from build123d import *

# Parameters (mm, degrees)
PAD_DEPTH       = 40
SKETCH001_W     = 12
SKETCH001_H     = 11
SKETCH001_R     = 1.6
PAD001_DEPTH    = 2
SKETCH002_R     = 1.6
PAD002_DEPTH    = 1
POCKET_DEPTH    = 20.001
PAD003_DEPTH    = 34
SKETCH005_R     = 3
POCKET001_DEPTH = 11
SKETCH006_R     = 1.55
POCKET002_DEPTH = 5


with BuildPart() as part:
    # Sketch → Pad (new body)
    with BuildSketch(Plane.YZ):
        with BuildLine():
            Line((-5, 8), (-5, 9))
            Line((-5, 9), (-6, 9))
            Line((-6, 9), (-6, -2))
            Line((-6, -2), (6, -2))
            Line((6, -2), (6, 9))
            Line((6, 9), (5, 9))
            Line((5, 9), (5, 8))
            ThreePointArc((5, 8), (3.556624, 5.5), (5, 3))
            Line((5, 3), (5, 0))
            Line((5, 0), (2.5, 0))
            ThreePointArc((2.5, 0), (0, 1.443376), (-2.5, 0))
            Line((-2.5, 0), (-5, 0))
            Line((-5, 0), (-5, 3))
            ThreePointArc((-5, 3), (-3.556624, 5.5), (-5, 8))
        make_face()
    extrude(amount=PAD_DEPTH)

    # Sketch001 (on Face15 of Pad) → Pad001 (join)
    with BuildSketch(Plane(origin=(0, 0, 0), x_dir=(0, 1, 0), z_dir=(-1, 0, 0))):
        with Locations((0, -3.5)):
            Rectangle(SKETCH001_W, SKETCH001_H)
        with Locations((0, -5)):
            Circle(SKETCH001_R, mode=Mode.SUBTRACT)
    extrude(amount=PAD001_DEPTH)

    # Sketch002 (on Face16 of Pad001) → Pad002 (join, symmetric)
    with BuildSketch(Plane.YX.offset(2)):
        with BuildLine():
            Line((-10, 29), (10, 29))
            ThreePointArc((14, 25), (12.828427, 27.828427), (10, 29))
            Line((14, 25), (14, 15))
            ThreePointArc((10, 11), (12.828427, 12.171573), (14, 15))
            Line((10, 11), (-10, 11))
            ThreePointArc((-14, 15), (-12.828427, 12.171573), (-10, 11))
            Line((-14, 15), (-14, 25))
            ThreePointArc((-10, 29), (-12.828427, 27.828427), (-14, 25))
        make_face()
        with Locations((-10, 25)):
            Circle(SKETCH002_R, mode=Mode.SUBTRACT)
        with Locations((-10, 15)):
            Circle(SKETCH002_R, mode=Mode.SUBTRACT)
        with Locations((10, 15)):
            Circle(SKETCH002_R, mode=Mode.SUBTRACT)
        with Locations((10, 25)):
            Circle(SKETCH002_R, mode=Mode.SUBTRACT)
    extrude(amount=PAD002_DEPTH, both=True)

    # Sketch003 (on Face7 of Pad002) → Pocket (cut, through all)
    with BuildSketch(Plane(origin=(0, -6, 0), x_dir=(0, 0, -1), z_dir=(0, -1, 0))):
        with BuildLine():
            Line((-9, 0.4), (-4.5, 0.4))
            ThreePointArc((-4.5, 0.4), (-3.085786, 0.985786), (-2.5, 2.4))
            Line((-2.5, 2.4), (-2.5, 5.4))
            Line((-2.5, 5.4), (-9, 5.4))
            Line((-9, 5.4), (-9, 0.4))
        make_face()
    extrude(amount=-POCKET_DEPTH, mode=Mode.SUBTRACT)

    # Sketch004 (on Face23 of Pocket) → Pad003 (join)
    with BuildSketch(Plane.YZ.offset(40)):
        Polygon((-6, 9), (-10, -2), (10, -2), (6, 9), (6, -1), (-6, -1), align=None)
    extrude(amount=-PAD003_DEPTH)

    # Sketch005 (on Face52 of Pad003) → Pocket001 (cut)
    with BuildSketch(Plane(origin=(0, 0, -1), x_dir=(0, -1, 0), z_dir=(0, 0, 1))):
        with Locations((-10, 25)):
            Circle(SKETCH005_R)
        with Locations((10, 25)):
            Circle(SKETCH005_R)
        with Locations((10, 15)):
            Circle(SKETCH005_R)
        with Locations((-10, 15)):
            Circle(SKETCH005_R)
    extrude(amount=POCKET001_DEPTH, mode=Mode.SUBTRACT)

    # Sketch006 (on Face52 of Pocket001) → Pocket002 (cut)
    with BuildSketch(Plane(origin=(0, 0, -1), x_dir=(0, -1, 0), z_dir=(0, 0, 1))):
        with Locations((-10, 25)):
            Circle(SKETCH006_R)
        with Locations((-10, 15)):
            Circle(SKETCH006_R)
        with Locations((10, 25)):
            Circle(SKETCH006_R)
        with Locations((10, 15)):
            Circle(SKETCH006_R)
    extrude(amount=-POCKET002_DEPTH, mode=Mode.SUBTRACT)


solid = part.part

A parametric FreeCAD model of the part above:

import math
import FreeCAD as App
import Part
import Sketcher

V = App.Vector
Q = App.Units.Quantity

doc = App.newDocument("Part")
body = doc.addObject("PartDesign::Body", "Body")

# Sketch on YZ plane
sketch1 = body.newObject("Sketcher::SketchObject", "Sketch")
sketch1.AttachmentSupport = (doc.getObject("YZ_Plane"), [""])
sketch1.MapMode = "FlatFace"
sketch1.addGeometry([
    Part.LineSegment(V(-5, 8, 0), V(-5, 9, 0)),  # 0
    Part.LineSegment(V(-5, 9, 0), V(-6, 9, 0)),  # 1
    Part.LineSegment(V(-6, 9, 0), V(-6, -2, 0)),  # 2
    Part.LineSegment(V(-6, -2, 0), V(6, -2, 0)),  # 3
    Part.LineSegment(V(6, -2, 0), V(6, 9, 0)),  # 4
    Part.LineSegment(V(6, 9, 0), V(5, 9, 0)),  # 5
    Part.LineSegment(V(5, 9, 0), V(5, 8, 0)),  # 6
    Part.ArcOfCircle(Part.Circle(V(6.443375, 5.5, 0), V(0, 0, 1), 2.886751), math.radians(119.999989), math.radians(240.000011)),  # 7
    Part.LineSegment(V(5, 3, 0), V(5, 0, 0)),  # 8
    Part.LineSegment(V(5, 0, 0), V(2.5, 0, 0)),  # 9
    Part.ArcOfCircle(Part.Circle(V(0, -1.443375, 0), V(0, 0, 1), 2.886751), math.radians(29.999989), math.radians(150.000011)),  # 10
    Part.LineSegment(V(-2.5, 0, 0), V(-5, 0, 0)),  # 11
    Part.LineSegment(V(-5, 0, 0), V(-5, 3, 0)),  # 12
    Part.ArcOfCircle(Part.Circle(V(-6.443375, 5.5, 0), V(0, 0, 1), 2.886751), math.radians(-60.000011), math.radians(60.000011)),  # 13
], False)
sketch1.addConstraint([
    Sketcher.Constraint("Coincident", 0, 2, 1, 1),
    Sketcher.Constraint("Coincident", 1, 2, 2, 1),
    Sketcher.Constraint("Coincident", 2, 2, 3, 1),
    Sketcher.Constraint("Coincident", 3, 2, 4, 1),
    Sketcher.Constraint("Coincident", 4, 2, 5, 1),
    Sketcher.Constraint("Coincident", 5, 2, 6, 1),
    Sketcher.Constraint("Coincident", 6, 2, 7, 1),
    Sketcher.Constraint("Coincident", 7, 2, 8, 1),
    Sketcher.Constraint("Coincident", 8, 2, 9, 1),
    Sketcher.Constraint("Coincident", 9, 2, 10, 1),
    Sketcher.Constraint("Coincident", 10, 2, 11, 1),
    Sketcher.Constraint("Coincident", 11, 2, 12, 1),
    Sketcher.Constraint("Coincident", 12, 2, 13, 1),
    Sketcher.Constraint("Coincident", 13, 2, 0, 1),
    Sketcher.Constraint("Vertical", 0),
    Sketcher.Constraint("Horizontal", 1),
    Sketcher.Constraint("Vertical", 2),
    Sketcher.Constraint("Horizontal", 3),
    Sketcher.Constraint("Vertical", 4),
    Sketcher.Constraint("Horizontal", 5),
    Sketcher.Constraint("Vertical", 6),
    Sketcher.Constraint("Vertical", 8),
    Sketcher.Constraint("Horizontal", 9),
    Sketcher.Constraint("Horizontal", 11),
    Sketcher.Constraint("Vertical", 12),
    Sketcher.Constraint("Equal", 7, 10),
    Sketcher.Constraint("Equal", 10, 13),
    Sketcher.Constraint("Symmetric", 9, 2, 10, 2, -1, 1),
    Sketcher.Constraint("Symmetric", 7, 3, 13, 3, -2),
    Sketcher.Constraint("Symmetric", 1, 2, 4, 2, -2),
    Sketcher.Constraint("Symmetric", 8, 2, 11, 2, -2),
    Sketcher.Constraint("Horizontal", 6, 2, 13, 2),
    Sketcher.Constraint("Vertical", 6, 2, 7, 2),
    Sketcher.Constraint("Equal", 5, 0),
    Sketcher.Constraint("DistanceX", 1, 2, 1, 1, Q("1 mm")),
    Sketcher.Constraint("DistanceX", 3, 1, 3, 2, Q("12 mm")),
    Sketcher.Constraint("DistanceY", 2, 2, 2, 1, Q("11 mm")),
    Sketcher.Constraint("DistanceY", 8, 2, 8, 1, Q("3 mm")),
    Sketcher.Constraint("DistanceX", 9, 2, 9, 1, Q("2.5 mm")),
    Sketcher.Constraint("DistanceY", -1, 1, 0, 2, Q("9 mm")),
    Sketcher.Constraint("Radius", 7, Q("2.886751 mm")),
])
pad1 = body.newObject("PartDesign::Pad", "Pad")
pad1.Profile = sketch1
pad1.Length = 40

# Sketch on YZ plane
sketch2 = body.newObject("Sketcher::SketchObject", "Sketch001")
sketch2.AttachmentSupport = (doc.getObject("YZ_Plane"), [""])
sketch2.MapMode = "FlatFace"
sketch2.addGeometry([
    Part.LineSegment(V(-6, -2, 0), V(-6, 9, 0)),  # 0
    Part.LineSegment(V(-6, 9, 0), V(6, 9, 0)),  # 1
    Part.LineSegment(V(6, 9, 0), V(6, -2, 0)),  # 2
    Part.LineSegment(V(6, -2, 0), V(-6, -2, 0)),  # 3
    Part.Circle(V(0, 5, 0), V(0, 0, 1), 1.6),  # 4
], False)
sketch2.addConstraint([
    Sketcher.Constraint("Coincident", 0, 2, 1, 1),
    Sketcher.Constraint("Coincident", 1, 2, 2, 1),
    Sketcher.Constraint("Coincident", 2, 2, 3, 1),
    Sketcher.Constraint("Coincident", 3, 2, 0, 1),
    Sketcher.Constraint("Vertical", 0),
    Sketcher.Constraint("Horizontal", 1),
    Sketcher.Constraint("Vertical", 2),
    Sketcher.Constraint("Horizontal", 3),
    Sketcher.Constraint("PointOnObject", 4, 3, -2),
    Sketcher.Constraint("Diameter", 4, Q("3.2 mm")),
    Sketcher.Constraint("DistanceX", 1, 1, 1, 2, Q("12 mm")),
    Sketcher.Constraint("DistanceY", 0, 1, 0, 2, Q("11 mm")),
    Sketcher.Constraint("DistanceY", -1, 1, 4, 3, Q("5 mm")),
    Sketcher.Constraint("DistanceX", 0, 2, -1, 1, Q("6 mm")),
    Sketcher.Constraint("DistanceY", -1, 1, 0, 2, Q("9 mm")),
])
pad2 = body.newObject("PartDesign::Pad", "Pad001")
pad2.Profile = sketch2
pad2.Length = 2
pad2.Reversed = True

# Sketch on XY plane
sketch3 = body.newObject("Sketcher::SketchObject", "Sketch002")
sketch3.AttachmentSupport = (doc.getObject("XY_Plane"), [""])
sketch3.MapMode = "FlatFace"
sketch3.AttachmentOffset = App.Placement(V(0, 0, -2), App.Rotation())
sketch3.addGeometry([
    Part.LineSegment(V(29, 10, 0), V(29, -10, 0)),  # 0
    Part.ArcOfCircle(Part.Circle(V(25, -10, 0), V(0, 0, 1), 4), math.radians(-89.999994), math.radians(-0.000006)),  # 1
    Part.LineSegment(V(25, -14, 0), V(15, -14, 0)),  # 2
    Part.ArcOfCircle(Part.Circle(V(15, -10, 0), V(0, 0, 1), 4), math.radians(-179.999994), math.radians(-90.000006)),  # 3
    Part.LineSegment(V(11, -10, 0), V(11, 10, 0)),  # 4
    Part.ArcOfCircle(Part.Circle(V(15, 10, 0), V(0, 0, 1), 4), math.radians(90.000006), math.radians(179.999994)),  # 5
    Part.LineSegment(V(15, 14, 0), V(25, 14, 0)),  # 6
    Part.ArcOfCircle(Part.Circle(V(25, 10, 0), V(0, 0, 1), 4), math.radians(0.000006), math.radians(89.999994)),  # 7
    Part.Circle(V(15, 10, 0), V(0, 0, 1), 1.6),  # 8
    Part.Circle(V(15, -10, 0), V(0, 0, 1), 1.6),  # 9
    Part.Circle(V(25, 10, 0), V(0, 0, 1), 1.6),  # 10
    Part.Circle(V(25, -10, 0), V(0, 0, 1), 1.6),  # 11
], False)
sketch3.addConstraint([
    Sketcher.Constraint("Tangent", 0, 2, 1, 2),
    Sketcher.Constraint("Tangent", 1, 1, 2, 1),
    Sketcher.Constraint("Tangent", 2, 2, 3, 2),
    Sketcher.Constraint("Tangent", 3, 1, 4, 1),
    Sketcher.Constraint("Tangent", 4, 2, 5, 2),
    Sketcher.Constraint("Tangent", 5, 1, 6, 1),
    Sketcher.Constraint("Tangent", 6, 2, 7, 2),
    Sketcher.Constraint("Tangent", 7, 1, 0, 1),
    Sketcher.Constraint("Vertical", 0),
    Sketcher.Constraint("Horizontal", 2),
    Sketcher.Constraint("Vertical", 4),
    Sketcher.Constraint("Horizontal", 6),
    Sketcher.Constraint("Coincident", 8, 3, 5, 3),
    Sketcher.Constraint("Coincident", 9, 3, 3, 3),
    Sketcher.Constraint("Coincident", 10, 3, 7, 3),
    Sketcher.Constraint("Coincident", 11, 3, 1, 3),
    Sketcher.Constraint("Equal", 1, 3),
    Sketcher.Constraint("Equal", 3, 5),
    Sketcher.Constraint("Equal", 5, 7),
    Sketcher.Constraint("Equal", 8, 9),
    Sketcher.Constraint("Equal", 9, 10),
    Sketcher.Constraint("Equal", 10, 11),
    Sketcher.Constraint("Radius", 1, Q("4 mm")),
    Sketcher.Constraint("Diameter", 8, Q("3.2 mm")),
    Sketcher.Constraint("DistanceX", 2, 2, 2, 1, Q("10 mm")),
    Sketcher.Constraint("DistanceY", 0, 2, 0, 1, Q("20 mm")),
    Sketcher.Constraint("DistanceX", -1, 1, 1, 3, Q("25 mm")),
    Sketcher.Constraint("DistanceY", 1, 3, -1, 1, Q("10 mm")),
])
pad3 = body.newObject("PartDesign::Pad", "Pad002")
pad3.Profile = sketch3
pad3.Length = 2
pad3.Midplane = True

# Sketch on XZ plane
sketch4 = body.newObject("Sketcher::SketchObject", "Sketch003")
sketch4.AttachmentSupport = (doc.getObject("XZ_Plane"), [""])
sketch4.MapMode = "FlatFace"
sketch4.AttachmentOffset = App.Placement(V(0, 0, 6), App.Rotation())
sketch4.addGeometry([
    Part.LineSegment(V(0.4, 9, 0), V(0.4, 4.5, 0)),  # 0
    Part.ArcOfCircle(Part.Circle(V(2.399999, 4.499999, 0), V(0, 0, 1), 1.999999), math.radians(179.999957), math.radians(270.000043)),  # 1
    Part.LineSegment(V(2.4, 2.5, 0), V(5.4, 2.5, 0)),  # 2
    Part.LineSegment(V(5.4, 2.5, 0), V(5.4, 9, 0)),  # 3
    Part.LineSegment(V(5.4, 9, 0), V(0.4, 9, 0)),  # 4
], False)
sketch4.addConstraint([
    Sketcher.Constraint("Tangent", 0, 2, 1, 1),
    Sketcher.Constraint("Tangent", 1, 2, 2, 1),
    Sketcher.Constraint("Coincident", 2, 2, 3, 1),
    Sketcher.Constraint("Coincident", 3, 2, 4, 1),
    Sketcher.Constraint("Coincident", 4, 2, 0, 1),
    Sketcher.Constraint("Vertical", 0),
    Sketcher.Constraint("Horizontal", 2),
    Sketcher.Constraint("Vertical", 3),
    Sketcher.Constraint("Horizontal", 4),
    Sketcher.Constraint("Radius", 1, Q("1.999999 mm")),
    Sketcher.Constraint("DistanceX", 2, 1, 2, 2, Q("3 mm")),
    Sketcher.Constraint("DistanceY", 0, 2, 0, 1, Q("4.5 mm")),
    Sketcher.Constraint("DistanceY", -1, 1, 3, 2, Q("9 mm")),
    Sketcher.Constraint("DistanceX", -1, 1, 1, 3, Q("2.399999 mm")),
])
pocket1 = body.newObject("PartDesign::Pocket", "Pocket")
pocket1.Profile = sketch4
pocket1.Type = "ThroughAll"

# Sketch on YZ plane
sketch5 = body.newObject("Sketcher::SketchObject", "Sketch004")
sketch5.AttachmentSupport = (doc.getObject("YZ_Plane"), [""])
sketch5.MapMode = "FlatFace"
sketch5.AttachmentOffset = App.Placement(V(0, 0, 40), App.Rotation())
sketch5.addGeometry([
    Part.LineSegment(V(-6, 9, 0), V(-10, -2, 0)),  # 0
    Part.LineSegment(V(-10, -2, 0), V(10, -2, 0)),  # 1
    Part.LineSegment(V(10, -2, 0), V(6, 9, 0)),  # 2
    Part.LineSegment(V(6, 9, 0), V(6, -1, 0)),  # 3
    Part.LineSegment(V(6, -1, 0), V(-6, -1, 0)),  # 4
    Part.LineSegment(V(-6, -1, 0), V(-6, 9, 0)),  # 5
], False)
sketch5.addConstraint([
    Sketcher.Constraint("Coincident", 0, 2, 1, 1),
    Sketcher.Constraint("Coincident", 1, 2, 2, 1),
    Sketcher.Constraint("Coincident", 2, 2, 3, 1),
    Sketcher.Constraint("Coincident", 3, 2, 4, 1),
    Sketcher.Constraint("Coincident", 4, 2, 5, 1),
    Sketcher.Constraint("Coincident", 5, 2, 0, 1),
    Sketcher.Constraint("Horizontal", 1),
    Sketcher.Constraint("Vertical", 3),
    Sketcher.Constraint("Horizontal", 4),
    Sketcher.Constraint("Vertical", 5),
    Sketcher.Constraint("Symmetric", 2, 2, 5, 2, -2),
    Sketcher.Constraint("Equal", 0, 2),
    Sketcher.Constraint("DistanceX", 1, 1, 1, 2, Q("20 mm")),
    Sketcher.Constraint("DistanceX", 4, 2, 4, 1, Q("12 mm")),
    Sketcher.Constraint("DistanceY", 3, 2, 3, 1, Q("10 mm")),
    Sketcher.Constraint("DistanceY", 0, 2, -1, 1, Q("2 mm")),
    Sketcher.Constraint("DistanceY", -1, 1, 2, 2, Q("9 mm")),
])
pad4 = body.newObject("PartDesign::Pad", "Pad003")
pad4.Profile = sketch5
pad4.Length = 34
pad4.Reversed = True

# Sketch on XY plane
sketch6 = body.newObject("Sketcher::SketchObject", "Sketch005")
sketch6.AttachmentSupport = (doc.getObject("XY_Plane"), [""])
sketch6.MapMode = "FlatFace"
sketch6.AttachmentOffset = App.Placement(V(0, 0, -1), App.Rotation())
sketch6.addGeometry([
    Part.Circle(V(25, 10, 0), V(0, 0, 1), 3),
    Part.Circle(V(25, -10, 0), V(0, 0, 1), 3),
    Part.Circle(V(15, -10, 0), V(0, 0, 1), 3),
    Part.Circle(V(15, 10, 0), V(0, 0, 1), 3),
], False)
sketch6.addConstraint([
    Sketcher.Constraint("Equal", 0, 1),
    Sketcher.Constraint("Equal", 1, 2),
    Sketcher.Constraint("Equal", 2, 3),
    Sketcher.Constraint("Symmetric", 0, 3, 1, 3, -1),
    Sketcher.Constraint("Symmetric", 2, 3, 3, 3, -1),
    Sketcher.Constraint("Horizontal", 1, 3, 2, 3),
    Sketcher.Constraint("Diameter", 0, Q("6 mm")),
    Sketcher.Constraint("DistanceX", -1, 1, 0, 3, Q("25 mm")),
    Sketcher.Constraint("DistanceY", -1, 1, 0, 3, Q("10 mm")),
    Sketcher.Constraint("DistanceX", -1, 1, 2, 3, Q("15 mm")),
])
pocket2 = body.newObject("PartDesign::Pocket", "Pocket001")
pocket2.Profile = sketch6
pocket2.Length = 11
pocket2.Reversed = True

# Sketch on XY plane
sketch7 = body.newObject("Sketcher::SketchObject", "Sketch006")
sketch7.AttachmentSupport = (doc.getObject("XY_Plane"), [""])
sketch7.MapMode = "FlatFace"
sketch7.AttachmentOffset = App.Placement(V(0, 0, -1), App.Rotation())
sketch7.addGeometry([
    Part.Circle(V(25, 10, 0), V(0, 0, 1), 1.55),
    Part.Circle(V(15, 10, 0), V(0, 0, 1), 1.55),
    Part.Circle(V(25, -10, 0), V(0, 0, 1), 1.55),
    Part.Circle(V(15, -10, 0), V(0, 0, 1), 1.55),
], False)
sketch7.addConstraint([
    Sketcher.Constraint("Equal", 0, 1),
    Sketcher.Constraint("Equal", 1, 2),
    Sketcher.Constraint("Equal", 2, 3),
    Sketcher.Constraint("Symmetric", 0, 3, 2, 3, -1),
    Sketcher.Constraint("Symmetric", 1, 3, 3, 3, -1),
    Sketcher.Constraint("Horizontal", 0, 3, 1, 3),
    Sketcher.Constraint("Diameter", 0, Q("3.1 mm")),
    Sketcher.Constraint("DistanceX", -1, 1, 0, 3, Q("25 mm")),
    Sketcher.Constraint("DistanceY", -1, 1, 0, 3, Q("10 mm")),
    Sketcher.Constraint("DistanceX", -1, 1, 1, 3, Q("15 mm")),
])
pocket3 = body.newObject("PartDesign::Pocket", "Pocket002")
pocket3.Profile = sketch7
pocket3.Length = 5

doc.recompute()
